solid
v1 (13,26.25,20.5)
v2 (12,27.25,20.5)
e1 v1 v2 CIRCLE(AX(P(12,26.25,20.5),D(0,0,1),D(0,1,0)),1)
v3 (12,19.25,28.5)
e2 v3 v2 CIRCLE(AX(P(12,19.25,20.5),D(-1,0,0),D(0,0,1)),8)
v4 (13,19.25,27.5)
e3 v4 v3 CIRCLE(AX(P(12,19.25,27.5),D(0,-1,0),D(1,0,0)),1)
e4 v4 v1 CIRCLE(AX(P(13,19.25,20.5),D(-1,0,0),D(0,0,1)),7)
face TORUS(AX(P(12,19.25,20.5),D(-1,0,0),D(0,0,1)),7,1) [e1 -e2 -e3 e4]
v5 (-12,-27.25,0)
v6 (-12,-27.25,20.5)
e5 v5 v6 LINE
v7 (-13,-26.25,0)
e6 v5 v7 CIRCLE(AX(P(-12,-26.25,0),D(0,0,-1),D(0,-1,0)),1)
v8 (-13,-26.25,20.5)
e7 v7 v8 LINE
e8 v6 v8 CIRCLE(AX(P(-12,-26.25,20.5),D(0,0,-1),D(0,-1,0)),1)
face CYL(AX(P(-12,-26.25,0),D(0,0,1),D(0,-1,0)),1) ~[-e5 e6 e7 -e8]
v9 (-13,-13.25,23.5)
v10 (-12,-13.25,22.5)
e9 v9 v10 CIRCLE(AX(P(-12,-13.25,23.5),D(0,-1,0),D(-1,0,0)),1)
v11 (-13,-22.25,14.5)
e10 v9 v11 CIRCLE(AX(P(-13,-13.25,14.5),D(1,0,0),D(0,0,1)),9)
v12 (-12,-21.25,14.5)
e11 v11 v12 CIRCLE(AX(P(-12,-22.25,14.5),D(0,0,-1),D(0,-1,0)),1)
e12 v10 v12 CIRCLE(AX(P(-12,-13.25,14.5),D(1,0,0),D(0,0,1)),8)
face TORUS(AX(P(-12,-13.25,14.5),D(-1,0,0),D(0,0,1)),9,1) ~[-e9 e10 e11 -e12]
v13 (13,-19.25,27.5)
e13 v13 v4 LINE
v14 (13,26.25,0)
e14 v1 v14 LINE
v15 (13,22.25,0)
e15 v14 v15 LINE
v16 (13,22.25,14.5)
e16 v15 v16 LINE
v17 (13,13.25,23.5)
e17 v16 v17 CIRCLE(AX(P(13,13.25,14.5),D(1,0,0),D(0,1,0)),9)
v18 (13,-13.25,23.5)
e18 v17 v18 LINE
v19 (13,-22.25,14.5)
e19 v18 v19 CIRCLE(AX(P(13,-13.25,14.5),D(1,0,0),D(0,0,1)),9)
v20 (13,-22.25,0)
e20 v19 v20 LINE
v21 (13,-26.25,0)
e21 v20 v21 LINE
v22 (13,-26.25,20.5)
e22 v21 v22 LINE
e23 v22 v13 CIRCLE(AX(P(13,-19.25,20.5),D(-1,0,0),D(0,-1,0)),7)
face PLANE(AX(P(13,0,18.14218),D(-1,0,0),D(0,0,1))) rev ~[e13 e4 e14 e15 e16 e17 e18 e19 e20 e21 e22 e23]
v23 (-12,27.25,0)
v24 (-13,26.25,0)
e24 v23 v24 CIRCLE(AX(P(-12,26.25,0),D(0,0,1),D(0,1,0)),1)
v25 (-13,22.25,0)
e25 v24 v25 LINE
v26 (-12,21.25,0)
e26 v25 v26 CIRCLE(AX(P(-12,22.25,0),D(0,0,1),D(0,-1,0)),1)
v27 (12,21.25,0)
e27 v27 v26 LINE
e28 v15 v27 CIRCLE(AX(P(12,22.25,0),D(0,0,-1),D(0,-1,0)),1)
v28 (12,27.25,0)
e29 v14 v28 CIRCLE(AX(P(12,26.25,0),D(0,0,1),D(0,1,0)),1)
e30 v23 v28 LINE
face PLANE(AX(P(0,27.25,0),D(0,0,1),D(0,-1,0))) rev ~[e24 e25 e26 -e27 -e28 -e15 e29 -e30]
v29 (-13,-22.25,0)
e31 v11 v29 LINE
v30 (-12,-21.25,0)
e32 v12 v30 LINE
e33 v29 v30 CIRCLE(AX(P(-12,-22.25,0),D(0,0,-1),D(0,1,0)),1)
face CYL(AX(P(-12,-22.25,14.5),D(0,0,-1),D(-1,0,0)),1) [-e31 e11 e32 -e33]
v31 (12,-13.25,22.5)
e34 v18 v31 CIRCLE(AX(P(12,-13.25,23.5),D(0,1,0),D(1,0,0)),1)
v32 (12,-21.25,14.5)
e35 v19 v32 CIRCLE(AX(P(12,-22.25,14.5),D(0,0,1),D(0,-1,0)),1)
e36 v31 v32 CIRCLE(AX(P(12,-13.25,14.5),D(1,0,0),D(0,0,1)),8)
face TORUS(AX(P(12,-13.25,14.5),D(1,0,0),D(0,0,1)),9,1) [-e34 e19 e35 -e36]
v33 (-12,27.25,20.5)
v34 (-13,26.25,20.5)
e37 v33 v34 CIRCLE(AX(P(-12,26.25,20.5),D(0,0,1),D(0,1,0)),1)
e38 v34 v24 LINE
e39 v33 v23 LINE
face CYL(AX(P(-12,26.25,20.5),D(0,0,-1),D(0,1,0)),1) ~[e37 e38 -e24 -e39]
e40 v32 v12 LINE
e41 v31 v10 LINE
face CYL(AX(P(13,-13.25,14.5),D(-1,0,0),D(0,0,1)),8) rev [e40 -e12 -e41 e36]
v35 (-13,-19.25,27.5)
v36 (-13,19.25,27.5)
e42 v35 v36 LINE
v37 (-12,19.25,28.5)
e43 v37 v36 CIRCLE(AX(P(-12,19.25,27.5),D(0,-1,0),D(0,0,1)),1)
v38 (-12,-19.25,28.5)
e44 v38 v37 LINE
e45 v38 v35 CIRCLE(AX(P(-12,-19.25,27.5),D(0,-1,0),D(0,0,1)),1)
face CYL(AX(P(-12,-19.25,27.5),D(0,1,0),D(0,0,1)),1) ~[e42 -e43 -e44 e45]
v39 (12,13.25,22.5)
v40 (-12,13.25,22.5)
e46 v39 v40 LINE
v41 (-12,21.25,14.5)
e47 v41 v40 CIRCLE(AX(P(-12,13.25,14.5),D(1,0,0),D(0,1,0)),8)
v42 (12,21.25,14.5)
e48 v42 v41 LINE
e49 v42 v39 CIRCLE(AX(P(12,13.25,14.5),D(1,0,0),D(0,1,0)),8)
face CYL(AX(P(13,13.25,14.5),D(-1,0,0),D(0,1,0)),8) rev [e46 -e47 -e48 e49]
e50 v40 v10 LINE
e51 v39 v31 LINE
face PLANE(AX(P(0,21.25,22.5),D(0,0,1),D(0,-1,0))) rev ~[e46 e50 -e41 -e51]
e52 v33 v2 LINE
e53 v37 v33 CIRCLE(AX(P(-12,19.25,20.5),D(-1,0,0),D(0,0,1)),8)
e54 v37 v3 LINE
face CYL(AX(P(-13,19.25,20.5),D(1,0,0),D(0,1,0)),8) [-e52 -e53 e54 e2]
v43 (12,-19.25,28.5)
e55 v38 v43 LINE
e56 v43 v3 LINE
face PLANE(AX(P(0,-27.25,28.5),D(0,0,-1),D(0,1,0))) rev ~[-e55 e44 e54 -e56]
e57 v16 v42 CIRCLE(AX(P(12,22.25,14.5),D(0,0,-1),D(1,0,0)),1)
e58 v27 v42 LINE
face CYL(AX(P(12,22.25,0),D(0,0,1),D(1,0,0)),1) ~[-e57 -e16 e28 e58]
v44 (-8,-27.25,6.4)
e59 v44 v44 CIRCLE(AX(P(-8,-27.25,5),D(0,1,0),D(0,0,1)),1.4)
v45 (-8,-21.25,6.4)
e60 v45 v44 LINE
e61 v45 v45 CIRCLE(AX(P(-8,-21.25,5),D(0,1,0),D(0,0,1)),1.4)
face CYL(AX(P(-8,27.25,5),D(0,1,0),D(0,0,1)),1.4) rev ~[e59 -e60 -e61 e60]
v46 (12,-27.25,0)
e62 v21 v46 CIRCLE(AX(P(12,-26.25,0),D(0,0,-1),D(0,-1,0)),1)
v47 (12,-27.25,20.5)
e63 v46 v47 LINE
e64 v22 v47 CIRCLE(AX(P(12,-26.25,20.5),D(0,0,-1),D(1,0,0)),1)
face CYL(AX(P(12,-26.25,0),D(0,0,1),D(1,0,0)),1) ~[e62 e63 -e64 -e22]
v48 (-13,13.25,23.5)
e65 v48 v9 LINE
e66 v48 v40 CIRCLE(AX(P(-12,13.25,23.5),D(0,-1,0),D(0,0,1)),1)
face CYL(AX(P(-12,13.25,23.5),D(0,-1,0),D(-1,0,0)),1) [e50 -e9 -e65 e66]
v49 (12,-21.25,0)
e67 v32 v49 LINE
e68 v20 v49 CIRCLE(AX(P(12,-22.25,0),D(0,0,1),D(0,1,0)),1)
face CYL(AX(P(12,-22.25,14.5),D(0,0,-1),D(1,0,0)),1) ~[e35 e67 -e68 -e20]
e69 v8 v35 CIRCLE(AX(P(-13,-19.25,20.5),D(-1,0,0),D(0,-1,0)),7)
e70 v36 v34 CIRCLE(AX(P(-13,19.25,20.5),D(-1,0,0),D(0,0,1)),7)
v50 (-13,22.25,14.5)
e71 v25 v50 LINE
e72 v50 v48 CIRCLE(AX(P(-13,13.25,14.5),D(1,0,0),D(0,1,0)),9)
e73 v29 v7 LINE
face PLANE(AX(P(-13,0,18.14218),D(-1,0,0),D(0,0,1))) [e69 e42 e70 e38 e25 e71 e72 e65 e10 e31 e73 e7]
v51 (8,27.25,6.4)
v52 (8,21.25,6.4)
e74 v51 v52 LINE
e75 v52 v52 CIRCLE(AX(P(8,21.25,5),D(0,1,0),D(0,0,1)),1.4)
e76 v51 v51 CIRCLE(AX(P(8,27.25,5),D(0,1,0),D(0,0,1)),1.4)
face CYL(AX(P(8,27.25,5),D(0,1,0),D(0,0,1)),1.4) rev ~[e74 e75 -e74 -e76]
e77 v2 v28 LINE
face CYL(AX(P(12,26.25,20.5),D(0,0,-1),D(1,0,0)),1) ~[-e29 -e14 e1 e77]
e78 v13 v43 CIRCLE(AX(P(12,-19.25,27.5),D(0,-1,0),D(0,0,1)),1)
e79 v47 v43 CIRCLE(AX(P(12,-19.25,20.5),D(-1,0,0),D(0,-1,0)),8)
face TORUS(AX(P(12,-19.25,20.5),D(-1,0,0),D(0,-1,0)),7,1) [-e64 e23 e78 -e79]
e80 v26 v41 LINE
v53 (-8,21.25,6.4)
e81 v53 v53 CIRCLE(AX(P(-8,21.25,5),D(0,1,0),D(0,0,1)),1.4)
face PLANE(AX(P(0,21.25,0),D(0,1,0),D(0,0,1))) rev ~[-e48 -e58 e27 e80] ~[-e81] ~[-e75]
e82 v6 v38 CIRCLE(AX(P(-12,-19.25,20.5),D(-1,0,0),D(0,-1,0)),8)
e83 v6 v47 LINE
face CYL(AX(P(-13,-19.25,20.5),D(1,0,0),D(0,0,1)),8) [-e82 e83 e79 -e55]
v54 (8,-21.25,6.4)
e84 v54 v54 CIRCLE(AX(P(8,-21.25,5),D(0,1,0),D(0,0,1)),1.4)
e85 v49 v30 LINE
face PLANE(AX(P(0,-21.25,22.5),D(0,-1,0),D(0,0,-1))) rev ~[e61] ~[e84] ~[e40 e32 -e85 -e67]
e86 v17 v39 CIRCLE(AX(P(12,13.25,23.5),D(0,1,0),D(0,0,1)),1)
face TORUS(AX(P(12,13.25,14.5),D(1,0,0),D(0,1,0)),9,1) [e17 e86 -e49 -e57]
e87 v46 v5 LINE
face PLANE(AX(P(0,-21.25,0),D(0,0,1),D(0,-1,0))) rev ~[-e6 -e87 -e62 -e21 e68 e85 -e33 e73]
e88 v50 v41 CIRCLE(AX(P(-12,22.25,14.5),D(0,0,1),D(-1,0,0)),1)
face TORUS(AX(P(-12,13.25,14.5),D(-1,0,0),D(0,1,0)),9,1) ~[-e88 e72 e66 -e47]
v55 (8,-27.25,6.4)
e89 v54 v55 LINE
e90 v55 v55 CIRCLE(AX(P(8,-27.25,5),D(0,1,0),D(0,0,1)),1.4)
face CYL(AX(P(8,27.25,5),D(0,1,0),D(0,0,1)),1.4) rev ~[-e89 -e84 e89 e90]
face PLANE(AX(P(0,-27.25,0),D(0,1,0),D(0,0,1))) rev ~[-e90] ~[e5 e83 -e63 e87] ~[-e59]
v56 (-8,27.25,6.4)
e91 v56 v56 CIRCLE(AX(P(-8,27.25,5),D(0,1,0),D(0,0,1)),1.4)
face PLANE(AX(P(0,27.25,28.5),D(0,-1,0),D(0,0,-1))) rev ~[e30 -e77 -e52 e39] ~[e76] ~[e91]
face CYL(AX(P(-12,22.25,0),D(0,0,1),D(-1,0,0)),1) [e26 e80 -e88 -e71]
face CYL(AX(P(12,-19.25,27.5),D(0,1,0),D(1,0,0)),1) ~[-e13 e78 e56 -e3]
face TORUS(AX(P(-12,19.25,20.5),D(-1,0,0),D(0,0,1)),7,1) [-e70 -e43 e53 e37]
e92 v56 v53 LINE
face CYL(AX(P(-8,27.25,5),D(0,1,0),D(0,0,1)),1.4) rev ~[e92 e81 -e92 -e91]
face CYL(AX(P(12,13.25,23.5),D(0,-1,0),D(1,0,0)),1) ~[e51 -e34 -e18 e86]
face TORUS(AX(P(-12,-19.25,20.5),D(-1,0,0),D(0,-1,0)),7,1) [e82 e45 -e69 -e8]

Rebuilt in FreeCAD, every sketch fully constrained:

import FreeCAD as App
import Part
import Sketcher
from FreeCAD import Vector
Q = App.Units.Quantity


def edges_at(feature, points):
    """Names of the edges that pass closest to the given points."""
    edges = feature.Shape.Edges
    near = lambda p: min(range(len(edges)), key=lambda i: edges[i].distToShape(Part.Vertex(*p))[0])
    return sorted({f"Edge{near(p) + 1}" for p in points})

doc = App.newDocument("Part")
params = doc.addObject("Spreadsheet::Sheet", "Params")
for row, (alias, value) in enumerate([
    ("sketch1_width", "6 mm"),
    ("sketch1_width2", "54.5 mm"),
    ("sketch1_height", "28.5 mm"),
    ("sketch1_height2", "22.5 mm"),
    ("pad1_length", "26 mm"),
    ("sketch2_diameter", "2.8 mm"),
    ("fillet_radius", "8 mm"),
    ("fillet2_radius", "1 mm"),
], start=1):
    params.set(f"A{row}", alias)
    params.set(f"B{row}", "=" + value)
    params.setAlias(f"B{row}", alias)

body = doc.addObject("PartDesign::Body", "Body")

sketch1 = body.newObject("Sketcher::SketchObject", "Sketch")
sketch1.AttachmentSupport = (doc.getObject("YZ_Plane"), [""])
sketch1.MapMode = "FlatFace"
sketch1.addGeometry([
    Part.LineSegment(Vector(21, 0, 0), Vector(27, 0, 0)),
    Part.LineSegment(Vector(27, 0, 0), Vector(27, 28, 0)),
    Part.LineSegment(Vector(27, 28, 0), Vector(-27, 28, 0)),
    Part.LineSegment(Vector(-27, 28, 0), Vector(-27, 0, 0)),
    Part.LineSegment(Vector(-27, 0, 0), Vector(-21, 0, 0)),
    Part.LineSegment(Vector(-21, 0, 0), Vector(-21, 22, 0)),
    Part.LineSegment(Vector(-21, 22, 0), Vector(21, 22, 0)),
    Part.LineSegment(Vector(21, 22, 0), Vector(21, 0, 0)),
], False)
sketch1.addConstraint([
    Sketcher.Constraint("Coincident", 0, 2, 1, 1),
    Sketcher.Constraint("Coincident", 1, 2, 2, 1),
    Sketcher.Constraint("Coincident", 2, 2, 3, 1),
    Sketcher.Constraint("Coincident", 3, 2, 4, 1),
    Sketcher.Constraint("Coincident", 4, 2, 5, 1),
    Sketcher.Constraint("Coincident", 5, 2, 6, 1),
    Sketcher.Constraint("Coincident", 6, 2, 7, 1),
    Sketcher.Constraint("Coincident", 7, 2, 0, 1),
    Sketcher.Constraint("Horizontal", 0),
    Sketcher.Constraint("Vertical", 1),
    Sketcher.Constraint("Horizontal", 2),
    Sketcher.Constraint("Vertical", 3),
    Sketcher.Constraint("Horizontal", 4),
    Sketcher.Constraint("Vertical", 5),
    Sketcher.Constraint("Horizontal", 6),
    Sketcher.Constraint("Vertical", 7),
    Sketcher.Constraint("Symmetric", 0, 2, 3, 2, -1, 1),
    Sketcher.Constraint("Symmetric", 4, 2, 7, 2, -2),
    Sketcher.Constraint("DistanceX", 0, 1, 0, 2, Q("6 mm")),
    Sketcher.Constraint("DistanceX", 2, 2, 2, 1, Q("54.5 mm")),
    Sketcher.Constraint("DistanceY", 1, 1, 1, 2, Q("28.5 mm")),
    Sketcher.Constraint("DistanceY", 5, 1, 5, 2, Q("22.5 mm")),
])
sketch1.setExpression("Constraints[18]", "Params.sketch1_width")
sketch1.setExpression("Constraints[19]", "Params.sketch1_width2")
sketch1.setExpression("Constraints[20]", "Params.sketch1_height")
sketch1.setExpression("Constraints[21]", "Params.sketch1_height2")
pad1 = body.newObject("PartDesign::Pad", "Pad")
pad1.Profile = sketch1
pad1.setExpression("Length", "Params.pad1_length")
pad1.Midplane = True

sketch2 = body.newObject("Sketcher::SketchObject", "Sketch001")
sketch2.AttachmentSupport = (doc.getObject("XZ_Plane"), [""])
sketch2.MapMode = "FlatFace"
sketch2.AttachmentOffset = App.Placement(Vector(0, 0, -27.25), App.Rotation())
sketch2.addGeometry([
    Part.Circle(Vector(-8, 5, 0), Vector(0, 0, 1), 1.4),
    Part.Circle(Vector(8, 5, 0), Vector(0, 0, 1), 1.4),
], False)
sketch2.addConstraint([
    Sketcher.Constraint("Equal", 0, 1),
    Sketcher.Constraint("Symmetric", 0, 3, 1, 3, -2),
    Sketcher.Constraint("Diameter", 0, Q("2.8 mm")),
    Sketcher.Constraint("DistanceX", 0, 3, -1, 1, Q("8 mm")),
    Sketcher.Constraint("DistanceY", -1, 1, 0, 3, Q("5 mm")),
])
sketch2.setExpression("Constraints[2]", "Params.sketch2_diameter")
pocket1 = body.newObject("PartDesign::Pocket", "Pocket")
pocket1.Profile = sketch2
pocket1.Type = "ThroughAll"
pocket1.Reversed = True
doc.recompute()

fillet = body.newObject("PartDesign::Fillet", "Fillet")
fillet.Base = (pocket1, edges_at(pocket1, [
    (0, 21.25, 22.5),
    (0, -21.25, 22.5),
    (0, -27.25, 28.5),
    (0, 27.25, 28.5),
]))
fillet.setExpression("Radius", "Params.fillet_radius")
doc.recompute()

fillet2 = body.newObject("PartDesign::Fillet", "Fillet001")
fillet2.Base = (fillet, edges_at(fillet, [
    (-13, 27.25, 10.25),
    (13, -21.25, 7.25),
    (-13, 21.25, 7.25),
    (13, 21.25, 7.25),
    (-13, 0, 22.5),
    (13, 0, 22.5),
    (-13, 0, 28.5),
    (13, 0, 28.5),
    (-13, -27.25, 10.25),
    (-13, -24.907, 26.157),
    (13, 27.25, 10.25),
    (-13, 24.907, 26.157),
    (13, -27.25, 10.25),
    (13, -24.907, 26.157),
    (13, 24.907, 26.157),
    (-13, 18.907, 20.157),
    (13, 18.907, 20.157),
    (-13, -18.907, 20.157),
    (13, -18.907, 20.157),
    (-13, -21.25, 7.25),
]))
fillet2.setExpression("Radius", "Params.fillet2_radius")

doc.recompute()
